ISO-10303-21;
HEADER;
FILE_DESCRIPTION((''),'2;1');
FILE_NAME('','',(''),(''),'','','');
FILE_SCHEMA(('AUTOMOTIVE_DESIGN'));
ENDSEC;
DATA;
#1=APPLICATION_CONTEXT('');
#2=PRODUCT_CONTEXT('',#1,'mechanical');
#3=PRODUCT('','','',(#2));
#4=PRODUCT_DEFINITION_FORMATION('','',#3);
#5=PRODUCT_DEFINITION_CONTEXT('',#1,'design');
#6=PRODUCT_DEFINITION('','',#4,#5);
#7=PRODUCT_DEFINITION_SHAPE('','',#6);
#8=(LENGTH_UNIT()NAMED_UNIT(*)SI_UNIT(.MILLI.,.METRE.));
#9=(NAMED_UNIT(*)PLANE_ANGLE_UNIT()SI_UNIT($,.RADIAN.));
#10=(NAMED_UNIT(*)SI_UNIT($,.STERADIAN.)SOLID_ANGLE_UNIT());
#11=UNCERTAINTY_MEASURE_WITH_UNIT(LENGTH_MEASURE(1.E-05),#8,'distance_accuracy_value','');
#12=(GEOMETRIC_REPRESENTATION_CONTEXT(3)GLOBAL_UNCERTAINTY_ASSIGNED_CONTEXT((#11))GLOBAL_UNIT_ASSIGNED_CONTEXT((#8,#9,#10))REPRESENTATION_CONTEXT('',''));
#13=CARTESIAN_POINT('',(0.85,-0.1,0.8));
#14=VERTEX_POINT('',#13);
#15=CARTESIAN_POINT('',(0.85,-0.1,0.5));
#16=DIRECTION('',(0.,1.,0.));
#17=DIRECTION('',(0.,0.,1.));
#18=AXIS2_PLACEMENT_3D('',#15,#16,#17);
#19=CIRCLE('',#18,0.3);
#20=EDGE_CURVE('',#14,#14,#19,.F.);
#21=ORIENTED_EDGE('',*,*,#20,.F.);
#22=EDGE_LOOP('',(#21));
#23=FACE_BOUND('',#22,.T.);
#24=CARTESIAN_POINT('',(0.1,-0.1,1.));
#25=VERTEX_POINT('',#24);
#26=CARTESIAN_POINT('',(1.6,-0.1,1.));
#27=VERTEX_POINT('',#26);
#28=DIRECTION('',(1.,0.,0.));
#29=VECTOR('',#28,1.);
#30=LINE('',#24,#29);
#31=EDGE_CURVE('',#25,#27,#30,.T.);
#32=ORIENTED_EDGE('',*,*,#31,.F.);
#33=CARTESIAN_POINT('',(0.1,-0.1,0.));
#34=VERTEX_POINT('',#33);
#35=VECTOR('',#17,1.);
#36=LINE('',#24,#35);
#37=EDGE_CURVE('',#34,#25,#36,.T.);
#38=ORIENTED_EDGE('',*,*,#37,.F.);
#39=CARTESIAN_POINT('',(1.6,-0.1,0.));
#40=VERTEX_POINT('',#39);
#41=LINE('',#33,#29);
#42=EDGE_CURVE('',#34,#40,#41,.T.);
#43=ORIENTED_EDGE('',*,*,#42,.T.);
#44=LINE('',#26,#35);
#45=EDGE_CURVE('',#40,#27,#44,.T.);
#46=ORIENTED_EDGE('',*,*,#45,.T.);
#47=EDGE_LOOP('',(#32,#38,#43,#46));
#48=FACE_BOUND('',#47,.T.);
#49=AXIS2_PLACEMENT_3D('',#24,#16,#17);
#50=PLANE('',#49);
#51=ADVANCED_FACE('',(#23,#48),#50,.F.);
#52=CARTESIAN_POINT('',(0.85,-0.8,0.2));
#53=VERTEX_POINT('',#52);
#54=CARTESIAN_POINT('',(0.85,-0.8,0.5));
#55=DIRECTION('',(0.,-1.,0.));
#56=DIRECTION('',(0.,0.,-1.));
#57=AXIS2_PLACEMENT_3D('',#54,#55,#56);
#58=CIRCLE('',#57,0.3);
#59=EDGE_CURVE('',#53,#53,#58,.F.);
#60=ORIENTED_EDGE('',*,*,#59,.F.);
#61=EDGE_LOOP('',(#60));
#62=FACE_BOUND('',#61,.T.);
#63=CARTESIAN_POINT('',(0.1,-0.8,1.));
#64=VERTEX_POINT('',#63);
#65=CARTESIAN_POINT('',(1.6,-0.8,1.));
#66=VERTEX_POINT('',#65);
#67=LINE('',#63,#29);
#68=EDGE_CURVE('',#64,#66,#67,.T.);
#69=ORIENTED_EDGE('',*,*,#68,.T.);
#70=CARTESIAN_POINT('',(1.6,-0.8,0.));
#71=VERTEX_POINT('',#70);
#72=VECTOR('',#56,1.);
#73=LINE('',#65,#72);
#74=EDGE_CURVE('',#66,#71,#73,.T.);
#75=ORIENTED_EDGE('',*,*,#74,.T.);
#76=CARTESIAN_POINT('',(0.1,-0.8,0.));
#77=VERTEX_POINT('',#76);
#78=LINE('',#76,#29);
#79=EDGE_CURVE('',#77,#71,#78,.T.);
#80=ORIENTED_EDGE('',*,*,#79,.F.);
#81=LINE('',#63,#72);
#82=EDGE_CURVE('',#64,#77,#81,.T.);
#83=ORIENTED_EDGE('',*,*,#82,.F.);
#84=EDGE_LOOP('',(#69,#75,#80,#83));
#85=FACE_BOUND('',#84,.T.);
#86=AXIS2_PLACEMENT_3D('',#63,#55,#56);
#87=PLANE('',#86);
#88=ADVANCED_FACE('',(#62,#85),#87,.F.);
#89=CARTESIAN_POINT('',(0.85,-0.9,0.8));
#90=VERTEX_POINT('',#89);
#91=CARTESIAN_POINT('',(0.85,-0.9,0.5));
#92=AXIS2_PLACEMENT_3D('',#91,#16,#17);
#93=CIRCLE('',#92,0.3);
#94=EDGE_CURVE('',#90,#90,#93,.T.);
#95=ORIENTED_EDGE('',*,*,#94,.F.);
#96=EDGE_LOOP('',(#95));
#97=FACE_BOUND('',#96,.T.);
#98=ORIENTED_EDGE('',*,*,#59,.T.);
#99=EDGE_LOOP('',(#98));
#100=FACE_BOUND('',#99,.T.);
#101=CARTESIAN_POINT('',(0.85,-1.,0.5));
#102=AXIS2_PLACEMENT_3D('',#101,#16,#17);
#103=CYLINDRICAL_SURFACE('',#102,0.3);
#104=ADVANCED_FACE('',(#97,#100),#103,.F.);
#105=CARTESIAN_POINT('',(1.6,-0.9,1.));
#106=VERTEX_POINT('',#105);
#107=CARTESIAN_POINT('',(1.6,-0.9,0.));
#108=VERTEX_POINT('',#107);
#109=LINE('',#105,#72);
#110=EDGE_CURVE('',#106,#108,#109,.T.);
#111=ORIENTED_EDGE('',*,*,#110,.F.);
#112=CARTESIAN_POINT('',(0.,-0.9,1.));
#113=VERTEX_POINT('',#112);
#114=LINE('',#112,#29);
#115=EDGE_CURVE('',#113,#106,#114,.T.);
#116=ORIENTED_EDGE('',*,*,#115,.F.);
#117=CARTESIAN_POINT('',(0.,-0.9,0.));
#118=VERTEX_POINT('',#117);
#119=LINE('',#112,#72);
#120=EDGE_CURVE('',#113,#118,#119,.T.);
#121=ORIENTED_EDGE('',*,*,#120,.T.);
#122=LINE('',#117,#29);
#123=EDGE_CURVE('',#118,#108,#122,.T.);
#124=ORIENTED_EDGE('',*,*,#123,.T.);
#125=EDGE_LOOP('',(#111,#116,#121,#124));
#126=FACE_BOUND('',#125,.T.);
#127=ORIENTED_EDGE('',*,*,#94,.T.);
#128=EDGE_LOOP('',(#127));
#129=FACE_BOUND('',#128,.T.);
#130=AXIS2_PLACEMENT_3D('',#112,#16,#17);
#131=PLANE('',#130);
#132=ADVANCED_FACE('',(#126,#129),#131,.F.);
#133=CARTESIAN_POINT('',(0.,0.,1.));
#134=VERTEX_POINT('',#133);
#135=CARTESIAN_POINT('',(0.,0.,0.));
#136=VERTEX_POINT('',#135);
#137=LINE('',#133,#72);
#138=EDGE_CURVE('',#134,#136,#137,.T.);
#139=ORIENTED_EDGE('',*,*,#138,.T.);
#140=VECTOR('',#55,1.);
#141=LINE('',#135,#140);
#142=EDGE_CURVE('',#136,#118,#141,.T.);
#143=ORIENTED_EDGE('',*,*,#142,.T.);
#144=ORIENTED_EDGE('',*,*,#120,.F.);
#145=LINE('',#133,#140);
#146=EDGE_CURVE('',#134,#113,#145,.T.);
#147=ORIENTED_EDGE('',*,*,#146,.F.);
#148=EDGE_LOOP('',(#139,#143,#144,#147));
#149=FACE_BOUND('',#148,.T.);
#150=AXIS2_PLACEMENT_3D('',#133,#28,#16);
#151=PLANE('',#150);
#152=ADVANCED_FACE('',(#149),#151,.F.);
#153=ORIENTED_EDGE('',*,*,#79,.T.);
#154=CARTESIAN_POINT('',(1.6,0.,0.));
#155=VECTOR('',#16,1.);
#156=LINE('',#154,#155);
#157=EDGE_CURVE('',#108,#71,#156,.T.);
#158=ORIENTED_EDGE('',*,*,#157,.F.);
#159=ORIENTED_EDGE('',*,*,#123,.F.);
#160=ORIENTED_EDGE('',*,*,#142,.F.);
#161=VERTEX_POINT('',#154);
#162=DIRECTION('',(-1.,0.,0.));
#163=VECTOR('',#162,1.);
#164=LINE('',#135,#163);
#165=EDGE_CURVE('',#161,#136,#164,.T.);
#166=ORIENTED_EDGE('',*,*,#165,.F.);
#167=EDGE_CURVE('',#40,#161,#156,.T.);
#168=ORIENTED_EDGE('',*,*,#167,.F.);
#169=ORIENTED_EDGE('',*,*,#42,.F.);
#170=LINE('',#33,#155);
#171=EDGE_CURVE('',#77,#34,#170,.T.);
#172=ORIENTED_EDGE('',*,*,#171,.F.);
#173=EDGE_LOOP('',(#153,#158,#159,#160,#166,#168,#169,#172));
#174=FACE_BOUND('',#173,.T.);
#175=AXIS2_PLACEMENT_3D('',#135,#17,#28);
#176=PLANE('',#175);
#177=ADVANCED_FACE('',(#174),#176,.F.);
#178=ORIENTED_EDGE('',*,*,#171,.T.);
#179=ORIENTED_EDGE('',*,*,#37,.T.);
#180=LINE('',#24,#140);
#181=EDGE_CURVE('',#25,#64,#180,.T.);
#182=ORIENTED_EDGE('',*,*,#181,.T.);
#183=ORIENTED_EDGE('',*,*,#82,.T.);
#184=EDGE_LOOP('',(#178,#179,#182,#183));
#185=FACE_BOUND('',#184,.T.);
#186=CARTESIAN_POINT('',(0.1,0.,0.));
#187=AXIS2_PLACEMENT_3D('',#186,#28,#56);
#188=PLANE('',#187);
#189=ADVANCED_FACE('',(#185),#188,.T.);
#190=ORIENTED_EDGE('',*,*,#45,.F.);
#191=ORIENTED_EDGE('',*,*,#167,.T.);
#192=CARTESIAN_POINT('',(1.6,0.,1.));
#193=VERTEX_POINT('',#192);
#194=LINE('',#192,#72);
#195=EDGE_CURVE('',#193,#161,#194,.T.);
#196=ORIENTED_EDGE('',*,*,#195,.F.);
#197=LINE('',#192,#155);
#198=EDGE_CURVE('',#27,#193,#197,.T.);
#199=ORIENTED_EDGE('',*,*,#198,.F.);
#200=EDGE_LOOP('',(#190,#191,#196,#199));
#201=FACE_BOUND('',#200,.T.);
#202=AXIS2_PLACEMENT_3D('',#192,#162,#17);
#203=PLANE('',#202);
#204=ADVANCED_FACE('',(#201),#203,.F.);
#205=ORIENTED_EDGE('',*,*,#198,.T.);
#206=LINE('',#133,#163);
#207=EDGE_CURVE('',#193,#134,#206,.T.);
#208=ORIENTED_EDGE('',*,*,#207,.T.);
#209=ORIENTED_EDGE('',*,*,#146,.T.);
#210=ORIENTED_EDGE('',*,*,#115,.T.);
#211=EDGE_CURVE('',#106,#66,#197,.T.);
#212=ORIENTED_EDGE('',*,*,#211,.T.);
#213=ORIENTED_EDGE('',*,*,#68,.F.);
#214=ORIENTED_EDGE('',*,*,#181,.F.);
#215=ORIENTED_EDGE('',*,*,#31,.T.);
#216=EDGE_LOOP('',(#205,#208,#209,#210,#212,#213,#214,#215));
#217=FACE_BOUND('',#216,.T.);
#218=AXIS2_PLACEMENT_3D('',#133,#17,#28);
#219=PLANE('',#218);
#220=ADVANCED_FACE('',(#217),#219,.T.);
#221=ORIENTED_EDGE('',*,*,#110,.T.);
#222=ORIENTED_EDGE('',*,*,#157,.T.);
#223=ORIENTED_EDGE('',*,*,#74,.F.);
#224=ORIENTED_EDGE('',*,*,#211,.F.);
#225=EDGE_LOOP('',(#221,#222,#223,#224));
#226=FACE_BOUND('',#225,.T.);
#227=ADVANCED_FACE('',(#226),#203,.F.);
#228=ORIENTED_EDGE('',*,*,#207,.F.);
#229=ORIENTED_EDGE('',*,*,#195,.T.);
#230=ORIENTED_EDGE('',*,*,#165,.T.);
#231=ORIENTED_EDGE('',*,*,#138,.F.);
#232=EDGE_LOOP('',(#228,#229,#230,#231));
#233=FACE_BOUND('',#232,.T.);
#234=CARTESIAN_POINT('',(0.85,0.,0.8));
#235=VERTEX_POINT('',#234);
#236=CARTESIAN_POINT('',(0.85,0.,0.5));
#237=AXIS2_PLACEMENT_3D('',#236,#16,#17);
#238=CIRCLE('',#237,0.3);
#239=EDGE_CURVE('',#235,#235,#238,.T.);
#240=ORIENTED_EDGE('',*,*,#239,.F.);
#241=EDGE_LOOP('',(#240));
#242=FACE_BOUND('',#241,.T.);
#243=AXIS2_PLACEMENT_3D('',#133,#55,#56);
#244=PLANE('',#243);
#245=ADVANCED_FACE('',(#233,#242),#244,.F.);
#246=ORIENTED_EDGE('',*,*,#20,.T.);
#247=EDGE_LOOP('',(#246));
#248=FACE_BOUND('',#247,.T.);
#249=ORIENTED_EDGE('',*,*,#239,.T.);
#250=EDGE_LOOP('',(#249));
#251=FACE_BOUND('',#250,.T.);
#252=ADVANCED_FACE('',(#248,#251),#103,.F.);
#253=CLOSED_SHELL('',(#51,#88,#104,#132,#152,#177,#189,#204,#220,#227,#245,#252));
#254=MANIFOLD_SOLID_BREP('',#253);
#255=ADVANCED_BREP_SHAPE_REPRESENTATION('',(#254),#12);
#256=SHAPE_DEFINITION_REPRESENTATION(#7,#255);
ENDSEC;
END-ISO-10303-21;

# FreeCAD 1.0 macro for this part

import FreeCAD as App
import Part
import Sketcher
from FreeCAD import Vector
Q = App.Units.Quantity


def add_polygon(sketch, points):
    """Adds a closed chain of lines whose ends are joined by coincident constraints."""
    first, n = sketch.GeometryCount, len(points)
    for a, b in zip(points, points[1:] + points[:1]):
        sketch.addGeometry(Part.LineSegment(App.Vector(*a, 0), App.Vector(*b, 0)), False)
    for i in range(n):
        sketch.addConstraint(Sketcher.Constraint("Coincident", first + i, 2, first + (i + 1) % n, 1))

doc = App.newDocument("Part")
params = doc.addObject("Spreadsheet::Sheet", "Params")
for row, (alias, value) in enumerate([
    ("sketch1_width", "1.6 mm"),
    ("sketch1_height", "0.9 mm"),
    ("pad1_length", "1 mm"),
    ("sketch2_diameter", "0.6 mm"),
    ("pocket1_length", "1 mm"),
    ("sketch3_height", "1 mm"),
    ("sketch3_width", "0.7 mm"),
    ("pocket2_length", "1.5 mm"),
], start=1):
    params.set(f"A{row}", alias)
    params.set(f"B{row}", "=" + value)
    params.setAlias(f"B{row}", alias)

body = doc.addObject("PartDesign::Body", "Body")

sketch1 = doc.addObject("Sketcher::SketchObject", "Sketch")
body.addObject(sketch1)
sketch1.AttachmentSupport = (doc.XY_Plane, [""])
sketch1.MapMode = "FlatFace"
add_polygon(sketch1, [(0, 0), (0, -0.9), (1.6, -0.9), (1.6, 0)])
sketch1.addConstraint([
    Sketcher.Constraint("Vertical", 0),
    Sketcher.Constraint("Horizontal", 1),
    Sketcher.Constraint("Vertical", 2),
    Sketcher.Constraint("Horizontal", 3),
    Sketcher.Constraint("Coincident", 3, 2, -1, 1),
    Sketcher.Constraint("DistanceX", 1, 1, 1, 2, Q("1.6 mm")),
    Sketcher.Constraint("DistanceY", 0, 2, 0, 1, Q("0.9 mm")),
])
sketch1.setExpression("Constraints[9]", "Params.sketch1_width")
sketch1.setExpression("Constraints[10]", "Params.sketch1_height")
pad1 = doc.addObject("PartDesign::Pad", "Pad")
body.addObject(pad1)
pad1.Profile = sketch1
pad1.setExpression("Length", "Params.pad1_length")

sketch2 = doc.addObject("Sketcher::SketchObject", "Sketch001")
body.addObject(sketch2)
sketch2.AttachmentSupport = (doc.XZ_Plane, [""])
sketch2.MapMode = "FlatFace"
sketch2.addGeometry(Part.Circle(Vector(0.85, 0.5, 0), Vector(0, 0, 1), 0.3), False)
sketch2.addConstraint([
    Sketcher.Constraint("Diameter", 0, Q("0.6 mm")),
    Sketcher.Constraint("DistanceY", -1, 1, 0, 3, Q("0.5 mm")),
    Sketcher.Constraint("DistanceX", -1, 1, 0, 3, Q("0.85 mm")),
])
sketch2.setExpression("Constraints[0]", "Params.sketch2_diameter")
pocket1 = doc.addObject("PartDesign::Pocket", "Pocket")
body.addObject(pocket1)
pocket1.Profile = sketch2
pocket1.setExpression("Length", "Params.pocket1_length")
pocket1.Reversed = True

sketch3 = doc.addObject("Sketcher::SketchObject", "Sketch002")
body.addObject(sketch3)
sketch3.AttachmentSupport = (doc.YZ_Plane, [""])
sketch3.MapMode = "FlatFace"
sketch3.AttachmentOffset = App.Placement(Vector(0, 0, 1.6), App.Rotation())
add_polygon(sketch3, [(-0.1, 1), (-0.8, 1), (-0.8, 0), (-0.1, 0)])
sketch3.addConstraint([
    Sketcher.Constraint("Horizontal", 0),
    Sketcher.Constraint("Vertical", 1),
    Sketcher.Constraint("Horizontal", 2),
    Sketcher.Constraint("Vertical", 3),
    Sketcher.Constraint("PointOnObject", 1, 2, -1),
    Sketcher.Constraint("DistanceY", 1, 2, 1, 1, Q("1 mm")),
    Sketcher.Constraint("DistanceX", 0, 2, 0, 1, Q("0.7 mm")),
    Sketcher.Constraint("DistanceX", 0, 2, -1, 1, Q("0.8 mm")),
])
sketch3.setExpression("Constraints[9]", "Params.sketch3_height")
sketch3.setExpression("Constraints[10]", "Params.sketch3_width")
pocket2 = doc.addObject("PartDesign::Pocket", "Pocket001")
body.addObject(pocket2)
pocket2.Profile = sketch3
pocket2.setExpression("Length", "Params.pocket2_length")

doc.recompute()
